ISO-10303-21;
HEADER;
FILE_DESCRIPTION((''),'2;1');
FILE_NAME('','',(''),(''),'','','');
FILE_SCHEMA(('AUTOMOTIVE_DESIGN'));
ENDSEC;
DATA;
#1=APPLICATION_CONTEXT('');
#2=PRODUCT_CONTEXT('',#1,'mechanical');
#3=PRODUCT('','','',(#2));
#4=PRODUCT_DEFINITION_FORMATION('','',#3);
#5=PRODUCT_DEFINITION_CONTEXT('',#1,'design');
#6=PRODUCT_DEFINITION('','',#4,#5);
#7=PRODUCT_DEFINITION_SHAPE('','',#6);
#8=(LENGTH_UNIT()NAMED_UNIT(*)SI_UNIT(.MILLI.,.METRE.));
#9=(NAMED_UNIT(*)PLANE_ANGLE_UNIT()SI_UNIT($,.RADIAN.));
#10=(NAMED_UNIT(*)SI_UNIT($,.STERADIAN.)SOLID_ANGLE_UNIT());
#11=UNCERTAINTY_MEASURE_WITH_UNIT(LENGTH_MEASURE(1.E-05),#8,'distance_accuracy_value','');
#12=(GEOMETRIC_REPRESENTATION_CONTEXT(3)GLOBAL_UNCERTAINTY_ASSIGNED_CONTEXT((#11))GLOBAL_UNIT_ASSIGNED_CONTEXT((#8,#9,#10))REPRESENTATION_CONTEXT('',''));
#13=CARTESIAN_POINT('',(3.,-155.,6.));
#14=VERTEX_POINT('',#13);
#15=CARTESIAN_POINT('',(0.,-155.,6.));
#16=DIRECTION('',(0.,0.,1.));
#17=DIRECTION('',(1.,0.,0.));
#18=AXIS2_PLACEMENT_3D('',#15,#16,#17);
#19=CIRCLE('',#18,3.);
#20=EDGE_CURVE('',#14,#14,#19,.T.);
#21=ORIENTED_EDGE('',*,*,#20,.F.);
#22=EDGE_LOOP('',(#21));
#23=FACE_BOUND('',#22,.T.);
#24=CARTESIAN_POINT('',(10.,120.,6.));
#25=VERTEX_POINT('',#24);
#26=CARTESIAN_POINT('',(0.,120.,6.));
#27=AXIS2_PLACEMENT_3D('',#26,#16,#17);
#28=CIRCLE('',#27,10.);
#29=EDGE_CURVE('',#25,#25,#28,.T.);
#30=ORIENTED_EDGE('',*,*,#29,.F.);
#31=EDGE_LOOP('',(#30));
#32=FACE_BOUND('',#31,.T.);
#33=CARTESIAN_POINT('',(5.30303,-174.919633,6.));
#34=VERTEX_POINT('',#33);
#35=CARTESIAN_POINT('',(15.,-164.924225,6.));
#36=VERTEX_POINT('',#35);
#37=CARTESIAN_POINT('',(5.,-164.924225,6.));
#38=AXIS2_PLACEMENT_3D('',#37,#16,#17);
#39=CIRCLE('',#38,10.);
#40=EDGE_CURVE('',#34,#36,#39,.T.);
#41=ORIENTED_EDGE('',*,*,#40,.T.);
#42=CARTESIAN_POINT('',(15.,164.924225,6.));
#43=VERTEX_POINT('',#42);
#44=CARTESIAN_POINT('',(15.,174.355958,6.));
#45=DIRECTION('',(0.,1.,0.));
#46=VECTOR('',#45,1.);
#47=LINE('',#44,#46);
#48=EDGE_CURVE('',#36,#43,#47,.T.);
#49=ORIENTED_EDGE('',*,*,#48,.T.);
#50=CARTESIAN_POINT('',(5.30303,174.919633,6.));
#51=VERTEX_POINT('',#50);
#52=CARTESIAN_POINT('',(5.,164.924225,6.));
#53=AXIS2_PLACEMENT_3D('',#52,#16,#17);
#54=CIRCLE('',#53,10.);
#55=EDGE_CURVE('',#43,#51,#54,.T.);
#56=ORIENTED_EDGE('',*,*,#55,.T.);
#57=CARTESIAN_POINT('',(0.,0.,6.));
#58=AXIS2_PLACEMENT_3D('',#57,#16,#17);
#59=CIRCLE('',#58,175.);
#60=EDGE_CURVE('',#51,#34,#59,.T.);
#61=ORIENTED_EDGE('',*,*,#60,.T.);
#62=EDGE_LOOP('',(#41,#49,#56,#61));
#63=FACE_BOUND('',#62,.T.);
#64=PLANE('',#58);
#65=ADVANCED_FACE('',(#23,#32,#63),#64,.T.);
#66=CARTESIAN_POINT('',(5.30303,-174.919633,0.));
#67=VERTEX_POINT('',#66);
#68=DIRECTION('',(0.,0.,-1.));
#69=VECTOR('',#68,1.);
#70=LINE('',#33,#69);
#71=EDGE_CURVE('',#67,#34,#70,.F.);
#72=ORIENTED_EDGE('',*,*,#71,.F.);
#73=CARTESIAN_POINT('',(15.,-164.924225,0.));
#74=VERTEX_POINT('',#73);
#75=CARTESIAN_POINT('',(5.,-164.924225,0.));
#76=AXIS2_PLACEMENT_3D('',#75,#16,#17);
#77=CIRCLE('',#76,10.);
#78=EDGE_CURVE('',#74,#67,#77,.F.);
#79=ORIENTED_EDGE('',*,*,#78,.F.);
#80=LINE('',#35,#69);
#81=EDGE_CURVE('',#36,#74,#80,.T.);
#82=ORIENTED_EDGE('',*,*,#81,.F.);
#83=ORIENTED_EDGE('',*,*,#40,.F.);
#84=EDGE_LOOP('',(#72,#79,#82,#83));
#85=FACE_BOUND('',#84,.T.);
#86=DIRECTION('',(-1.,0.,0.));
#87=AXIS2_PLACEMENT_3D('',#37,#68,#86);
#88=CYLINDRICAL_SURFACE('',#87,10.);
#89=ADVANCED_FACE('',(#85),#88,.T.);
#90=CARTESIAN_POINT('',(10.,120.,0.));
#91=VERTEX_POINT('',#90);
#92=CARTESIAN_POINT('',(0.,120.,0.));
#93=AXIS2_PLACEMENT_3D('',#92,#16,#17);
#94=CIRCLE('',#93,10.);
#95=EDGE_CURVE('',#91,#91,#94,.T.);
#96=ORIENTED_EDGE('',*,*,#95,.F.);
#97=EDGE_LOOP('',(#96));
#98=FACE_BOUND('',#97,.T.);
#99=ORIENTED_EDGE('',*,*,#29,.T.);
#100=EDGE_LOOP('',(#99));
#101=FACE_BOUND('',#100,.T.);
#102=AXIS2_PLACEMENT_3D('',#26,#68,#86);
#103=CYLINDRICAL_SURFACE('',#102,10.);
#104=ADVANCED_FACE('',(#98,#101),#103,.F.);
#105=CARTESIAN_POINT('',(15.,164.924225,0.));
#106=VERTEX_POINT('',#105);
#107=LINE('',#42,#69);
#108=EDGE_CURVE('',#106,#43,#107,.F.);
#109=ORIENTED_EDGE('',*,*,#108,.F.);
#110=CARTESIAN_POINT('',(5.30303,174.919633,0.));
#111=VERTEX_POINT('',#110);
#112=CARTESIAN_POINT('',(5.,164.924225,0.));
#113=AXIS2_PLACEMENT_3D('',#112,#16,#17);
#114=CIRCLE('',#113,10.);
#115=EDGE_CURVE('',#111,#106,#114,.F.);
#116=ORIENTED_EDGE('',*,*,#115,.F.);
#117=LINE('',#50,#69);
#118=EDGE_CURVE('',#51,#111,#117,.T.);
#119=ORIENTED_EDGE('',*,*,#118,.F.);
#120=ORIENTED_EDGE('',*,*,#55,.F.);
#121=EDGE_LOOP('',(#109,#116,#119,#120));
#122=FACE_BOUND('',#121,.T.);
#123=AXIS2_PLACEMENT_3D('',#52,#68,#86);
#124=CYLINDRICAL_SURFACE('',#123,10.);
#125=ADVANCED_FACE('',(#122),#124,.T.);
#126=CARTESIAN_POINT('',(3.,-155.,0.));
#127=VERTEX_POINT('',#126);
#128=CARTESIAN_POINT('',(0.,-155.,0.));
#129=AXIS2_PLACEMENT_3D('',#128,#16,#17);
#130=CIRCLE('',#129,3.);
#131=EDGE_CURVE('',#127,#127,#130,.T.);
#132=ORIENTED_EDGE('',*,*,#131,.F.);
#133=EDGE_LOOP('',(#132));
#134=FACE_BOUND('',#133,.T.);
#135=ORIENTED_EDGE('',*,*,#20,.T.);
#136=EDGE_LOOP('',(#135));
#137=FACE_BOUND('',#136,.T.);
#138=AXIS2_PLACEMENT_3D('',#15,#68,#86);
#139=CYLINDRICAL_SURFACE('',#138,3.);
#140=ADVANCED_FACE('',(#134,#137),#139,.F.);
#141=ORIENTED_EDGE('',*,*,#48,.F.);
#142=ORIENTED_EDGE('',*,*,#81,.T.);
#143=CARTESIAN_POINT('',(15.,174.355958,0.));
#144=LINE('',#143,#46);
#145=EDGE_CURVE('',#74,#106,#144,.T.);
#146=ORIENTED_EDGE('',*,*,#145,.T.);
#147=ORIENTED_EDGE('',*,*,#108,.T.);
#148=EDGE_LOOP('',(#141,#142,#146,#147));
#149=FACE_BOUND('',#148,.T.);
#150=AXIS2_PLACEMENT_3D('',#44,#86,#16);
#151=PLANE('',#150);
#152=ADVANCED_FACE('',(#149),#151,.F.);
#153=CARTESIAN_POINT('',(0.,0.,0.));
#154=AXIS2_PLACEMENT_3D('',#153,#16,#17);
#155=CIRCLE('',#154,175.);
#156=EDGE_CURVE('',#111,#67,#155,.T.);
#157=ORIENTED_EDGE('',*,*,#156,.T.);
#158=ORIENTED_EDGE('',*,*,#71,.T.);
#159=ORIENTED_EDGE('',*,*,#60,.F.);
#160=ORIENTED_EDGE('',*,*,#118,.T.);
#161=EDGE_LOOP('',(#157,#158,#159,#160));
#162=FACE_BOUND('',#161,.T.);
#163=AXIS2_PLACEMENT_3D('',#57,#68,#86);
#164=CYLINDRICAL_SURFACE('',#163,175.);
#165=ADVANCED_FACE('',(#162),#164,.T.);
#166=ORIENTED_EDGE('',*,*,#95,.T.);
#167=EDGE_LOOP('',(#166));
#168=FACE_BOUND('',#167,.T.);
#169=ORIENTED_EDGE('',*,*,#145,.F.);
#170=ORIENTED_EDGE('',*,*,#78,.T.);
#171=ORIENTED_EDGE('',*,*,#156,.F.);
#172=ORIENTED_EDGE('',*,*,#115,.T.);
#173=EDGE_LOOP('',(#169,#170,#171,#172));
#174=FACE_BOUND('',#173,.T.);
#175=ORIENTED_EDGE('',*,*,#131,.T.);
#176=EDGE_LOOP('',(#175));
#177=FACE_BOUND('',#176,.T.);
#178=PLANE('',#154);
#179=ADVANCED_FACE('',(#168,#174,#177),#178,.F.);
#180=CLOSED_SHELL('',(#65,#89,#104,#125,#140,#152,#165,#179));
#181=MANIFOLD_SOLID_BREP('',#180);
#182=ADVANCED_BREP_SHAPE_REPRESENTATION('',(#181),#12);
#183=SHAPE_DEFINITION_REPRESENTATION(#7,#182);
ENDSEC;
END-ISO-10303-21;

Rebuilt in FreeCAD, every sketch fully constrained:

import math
import FreeCAD as App
import Part
import Sketcher

V = App.Vector
Q = App.Units.Quantity


def edges_at(feature, points):
    """Names of the edges that pass closest to the given points."""
    edges = feature.Shape.Edges
    near = lambda p: min(range(len(edges)), key=lambda i: edges[i].distToShape(Part.Vertex(*p))[0])
    return sorted({f"Edge{near(p) + 1}" for p in points})

doc = App.newDocument("Part")
body = doc.addObject("PartDesign::Body", "Body")

# Sketch on XY plane
sketch1 = body.newObject("Sketcher::SketchObject", "Sketch")
sketch1.AttachmentSupport = (doc.getObject("XY_Plane"), [""])
sketch1.MapMode = "FlatFace"
sketch1.addGeometry([
    Part.LineSegment(V(15, -174.4, 0), V(15, 174.4, 0)),
    Part.ArcOfCircle(Part.Circle(V(0, 0, 0), V(0, 0, 1), 175), math.radians(85), math.radians(275)),
    Part.Circle(V(0, -155, 0), V(0, 0, 1), 3),
    Part.Circle(V(0, 120, 0), V(0, 0, 1), 10),
], False)
sketch1.addConstraint([
    Sketcher.Constraint("Coincident", 0, 1, 1, 2),
    Sketcher.Constraint("Coincident", 1, 1, 0, 2),
    Sketcher.Constraint("Vertical", 0),
    Sketcher.Constraint("Coincident", 1, 3, -1, 1),
    Sketcher.Constraint("PointOnObject", 2, 3, -2),
    Sketcher.Constraint("PointOnObject", 3, 3, -2),
    Sketcher.Constraint("Diameter", 2, Q("6 mm")),
    Sketcher.Constraint("Diameter", 3, Q("20 mm")),
    Sketcher.Constraint("Radius", 1, Q("175 mm")),
    Sketcher.Constraint("DistanceY", 2, 3, -1, 1, Q("155 mm")),
    Sketcher.Constraint("DistanceY", -1, 1, 3, 3, Q("120 mm")),
    Sketcher.Constraint("DistanceX", -1, 1, 0, 1, Q("15 mm")),
])
pad1 = body.newObject("PartDesign::Pad", "Pad")
pad1.Profile = sketch1
pad1.Length = 6
doc.recompute()

fillet = body.newObject("PartDesign::Fillet", "Fillet")
fillet.Base = (pad1, edges_at(pad1, [(15, 174.356, 3), (15, -174.356, 3)]))
fillet.Radius = 10

doc.recompute()
